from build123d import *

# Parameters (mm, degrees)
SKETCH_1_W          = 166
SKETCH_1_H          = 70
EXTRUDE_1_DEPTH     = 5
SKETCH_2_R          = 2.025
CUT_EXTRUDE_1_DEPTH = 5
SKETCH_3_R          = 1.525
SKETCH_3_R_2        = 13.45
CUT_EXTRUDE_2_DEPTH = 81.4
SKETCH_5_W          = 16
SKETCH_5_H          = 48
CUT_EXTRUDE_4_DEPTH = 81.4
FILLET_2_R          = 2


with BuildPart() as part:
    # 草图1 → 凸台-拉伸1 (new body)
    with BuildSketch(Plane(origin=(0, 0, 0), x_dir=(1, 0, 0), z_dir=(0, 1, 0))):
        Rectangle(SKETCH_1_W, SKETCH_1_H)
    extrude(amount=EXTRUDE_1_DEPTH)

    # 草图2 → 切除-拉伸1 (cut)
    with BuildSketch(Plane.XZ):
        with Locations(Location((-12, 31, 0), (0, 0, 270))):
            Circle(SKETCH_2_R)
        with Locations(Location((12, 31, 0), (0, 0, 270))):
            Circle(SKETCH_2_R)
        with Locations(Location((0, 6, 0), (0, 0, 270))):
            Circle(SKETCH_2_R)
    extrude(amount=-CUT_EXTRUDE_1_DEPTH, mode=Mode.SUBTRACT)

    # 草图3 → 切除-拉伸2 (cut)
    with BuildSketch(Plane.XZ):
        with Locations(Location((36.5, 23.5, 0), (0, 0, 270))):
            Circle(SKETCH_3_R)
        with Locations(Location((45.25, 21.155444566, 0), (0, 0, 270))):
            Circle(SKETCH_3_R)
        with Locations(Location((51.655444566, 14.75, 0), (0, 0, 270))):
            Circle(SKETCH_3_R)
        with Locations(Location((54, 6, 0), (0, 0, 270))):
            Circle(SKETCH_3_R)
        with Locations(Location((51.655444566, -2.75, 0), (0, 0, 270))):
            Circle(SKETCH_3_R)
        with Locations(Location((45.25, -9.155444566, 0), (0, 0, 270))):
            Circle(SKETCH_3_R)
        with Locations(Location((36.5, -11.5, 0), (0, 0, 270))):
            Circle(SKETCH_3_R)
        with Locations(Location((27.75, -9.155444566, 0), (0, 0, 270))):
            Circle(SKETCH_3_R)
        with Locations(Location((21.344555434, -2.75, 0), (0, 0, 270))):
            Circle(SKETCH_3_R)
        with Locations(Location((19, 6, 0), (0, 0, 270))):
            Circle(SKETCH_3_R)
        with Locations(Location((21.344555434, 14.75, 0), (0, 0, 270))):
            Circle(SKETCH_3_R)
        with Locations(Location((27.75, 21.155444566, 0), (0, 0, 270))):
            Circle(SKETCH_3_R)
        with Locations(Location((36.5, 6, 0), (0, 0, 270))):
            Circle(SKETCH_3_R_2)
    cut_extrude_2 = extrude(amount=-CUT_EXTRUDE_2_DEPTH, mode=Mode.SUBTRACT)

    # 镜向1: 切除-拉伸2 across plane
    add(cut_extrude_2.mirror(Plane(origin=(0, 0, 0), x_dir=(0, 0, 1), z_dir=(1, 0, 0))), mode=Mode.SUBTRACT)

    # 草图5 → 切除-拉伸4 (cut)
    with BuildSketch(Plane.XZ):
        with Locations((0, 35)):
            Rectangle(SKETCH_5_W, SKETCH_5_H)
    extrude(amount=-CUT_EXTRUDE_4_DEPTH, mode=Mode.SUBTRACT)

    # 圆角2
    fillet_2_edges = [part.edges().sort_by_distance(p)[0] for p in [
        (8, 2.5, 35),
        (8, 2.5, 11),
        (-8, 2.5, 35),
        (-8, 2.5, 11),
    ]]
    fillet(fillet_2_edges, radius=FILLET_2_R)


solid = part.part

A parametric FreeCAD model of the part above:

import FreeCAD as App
import Part
import Sketcher
Q = App.Units.Quantity


def edges_at(feature, points):
    """Names of the edges that pass closest to the given points."""
    edges = feature.Shape.Edges
    near = lambda p: min(range(len(edges)), key=lambda i: edges[i].distToShape(Part.Vertex(*p))[0])
    return sorted({f"Edge{near(p) + 1}" for p in points})

doc = App.newDocument("Part")
body = doc.addObject("PartDesign::Body", "Body")

sketch1 = body.newObject("Sketcher::SketchObject", "Sketch")
sketch1.AttachmentSupport = (doc.getObject("XZ_Plane"), [""])
sketch1.MapMode = "FlatFace"
sketch1.addGeometry(Part.LineSegment(App.Vector(-83, -35, 0), App.Vector(-83, 35, 0)), False)
sketch1.addGeometry(Part.LineSegment(App.Vector(-83, 35, 0), App.Vector(83, 35, 0)), False)
sketch1.addGeometry(Part.LineSegment(App.Vector(83, 35, 0), App.Vector(83, -35, 0)), False)
sketch1.addGeometry(Part.LineSegment(App.Vector(83, -35, 0), App.Vector(-83, -35, 0)), False)
sketch1.addConstraint(Sketcher.Constraint("Coincident", 0, 2, 1, 1))
sketch1.addConstraint(Sketcher.Constraint("Coincident", 1, 2, 2, 1))
sketch1.addConstraint(Sketcher.Constraint("Coincident", 2, 2, 3, 1))
sketch1.addConstraint(Sketcher.Constraint("Coincident", 3, 2, 0, 1))
sketch1.addConstraint(Sketcher.Constraint("Vertical", 0))
sketch1.addConstraint(Sketcher.Constraint("Horizontal", 1))
sketch1.addConstraint(Sketcher.Constraint("Vertical", 2))
sketch1.addConstraint(Sketcher.Constraint("Horizontal", 3))
sketch1.addConstraint(Sketcher.Constraint("Symmetric", 0, 2, 2, 2, -1, 1))
sketch1.addConstraint(Sketcher.Constraint("DistanceX", 1, 1, 1, 2, Q("166 mm")))
sketch1.addConstraint(Sketcher.Constraint("DistanceY", 0, 1, 0, 2, Q("70 mm")))
pad1 = body.newObject("PartDesign::Pad", "Pad")
pad1.Profile = sketch1
pad1.Length = 5
pad1.Reversed = True

sketch2 = body.newObject("Sketcher::SketchObject", "Sketch001")
sketch2.AttachmentSupport = (doc.getObject("XZ_Plane"), [""])
sketch2.MapMode = "FlatFace"
sketch2.addGeometry(Part.Circle(App.Vector(-12, 31, 0), App.Vector(0, 0, 1), 2.025), False)
sketch2.addGeometry(Part.Circle(App.Vector(12, 31, 0), App.Vector(0, 0, 1), 2.025), False)
sketch2.addGeometry(Part.Circle(App.Vector(0, 6, 0), App.Vector(0, 0, 1), 2.025), False)
sketch2.addConstraint(Sketcher.Constraint("Equal", 0, 1))
sketch2.addConstraint(Sketcher.Constraint("Equal", 1, 2))
sketch2.addConstraint(Sketcher.Constraint("Symmetric", 0, 3, 1, 3, -2))
sketch2.addConstraint(Sketcher.Constraint("PointOnObject", 2, 3, -2))
sketch2.addConstraint(Sketcher.Constraint("Diameter", 0, Q("4.05 mm")))
sketch2.addConstraint(Sketcher.Constraint("DistanceX", 0, 3, -1, 1, Q("12 mm")))
sketch2.addConstraint(Sketcher.Constraint("DistanceY", -1, 1, 0, 3, Q("31 mm")))
sketch2.addConstraint(Sketcher.Constraint("DistanceY", -1, 1, 2, 3, Q("6 mm")))
pocket1 = body.newObject("PartDesign::Pocket", "Pocket")
pocket1.Profile = sketch2
pocket1.Length = 5

sketch3 = body.newObject("Sketcher::SketchObject", "Sketch002")
sketch3.AttachmentSupport = (doc.getObject("XZ_Plane"), [""])
sketch3.MapMode = "FlatFace"
sketch3.addGeometry(Part.Circle(App.Vector(36.5, 23.5, 0), App.Vector(0, 0, 1), 1.525), False)
sketch3.addGeometry(Part.Circle(App.Vector(45.25, 21.155445, 0), App.Vector(0, 0, 1), 1.525), False)
sketch3.addGeometry(Part.Circle(App.Vector(51.655445, 14.75, 0), App.Vector(0, 0, 1), 1.525), False)
sketch3.addGeometry(Part.Circle(App.Vector(54, 6, 0), App.Vector(0, 0, 1), 1.525), False)
sketch3.addGeometry(Part.Circle(App.Vector(51.655445, -2.75, 0), App.Vector(0, 0, 1), 1.525), False)
sketch3.addGeometry(Part.Circle(App.Vector(45.25, -9.155445, 0), App.Vector(0, 0, 1), 1.525), False)
sketch3.addGeometry(Part.Circle(App.Vector(36.5, -11.5, 0), App.Vector(0, 0, 1), 1.525), False)
sketch3.addGeometry(Part.Circle(App.Vector(27.75, -9.155445, 0), App.Vector(0, 0, 1), 1.525), False)
sketch3.addGeometry(Part.Circle(App.Vector(21.344555, -2.75, 0), App.Vector(0, 0, 1), 1.525), False)
sketch3.addGeometry(Part.Circle(App.Vector(19, 6, 0), App.Vector(0, 0, 1), 1.525), False)
sketch3.addGeometry(Part.Circle(App.Vector(21.344555, 14.75, 0), App.Vector(0, 0, 1), 1.525), False)
sketch3.addGeometry(Part.Circle(App.Vector(27.75, 21.155445, 0), App.Vector(0, 0, 1), 1.525), False)
sketch3.addGeometry(Part.Circle(App.Vector(36.5, 6, 0), App.Vector(0, 0, 1), 13.45), False)
sketch3.addConstraint(Sketcher.Constraint("Equal", 0, 1))
sketch3.addConstraint(Sketcher.Constraint("Equal", 1, 2))
sketch3.addConstraint(Sketcher.Constraint("Equal", 2, 3))
sketch3.addConstraint(Sketcher.Constraint("Equal", 3, 4))
sketch3.addConstraint(Sketcher.Constraint("Equal", 4, 5))
sketch3.addConstraint(Sketcher.Constraint("Equal", 5, 6))
sketch3.addConstraint(Sketcher.Constraint("Equal", 6, 7))
sketch3.addConstraint(Sketcher.Constraint("Equal", 7, 8))
sketch3.addConstraint(Sketcher.Constraint("Equal", 8, 9))
sketch3.addConstraint(Sketcher.Constraint("Equal", 9, 10))
sketch3.addConstraint(Sketcher.Constraint("Equal", 10, 11))
sketch3.addConstraint(Sketcher.Constraint("Horizontal", 5, 3, 7, 3))
sketch3.addConstraint(Sketcher.Constraint("Horizontal", 4, 3, 8, 3))
sketch3.addConstraint(Sketcher.Constraint("Horizontal", 3, 3, 9, 3))
sketch3.addConstraint(Sketcher.Constraint("Horizontal", 2, 3, 10, 3))
sketch3.addConstraint(Sketcher.Constraint("Horizontal", 1, 3, 11, 3))
sketch3.addConstraint(Sketcher.Constraint("Horizontal", 9, 3, 12, 3))
sketch3.addConstraint(Sketcher.Constraint("Vertical", 2, 3, 4, 3))
sketch3.addConstraint(Sketcher.Constraint("Vertical", 1, 3, 5, 3))
sketch3.addConstraint(Sketcher.Constraint("Vertical", 0, 3, 6, 3))
sketch3.addConstraint(Sketcher.Constraint("Vertical", 8, 3, 10, 3))
sketch3.addConstraint(Sketcher.Constraint("Vertical", 7, 3, 11, 3))
sketch3.addConstraint(Sketcher.Constraint("Vertical", 6, 3, 12, 3))
sketch3.addConstraint(Sketcher.Constraint("Diameter", 12, Q("26.9 mm")))
sketch3.addConstraint(Sketcher.Constraint("Diameter", 0, Q("3.05 mm")))
sketch3.addConstraint(Sketcher.Constraint("DistanceX", -1, 1, 3, 3, Q("54 mm")))
sketch3.addConstraint(Sketcher.Constraint("DistanceY", -1, 1, 3, 3, Q("6 mm")))
sketch3.addConstraint(Sketcher.Constraint("DistanceX", -1, 1, 9, 3, Q("19 mm")))
sketch3.addConstraint(Sketcher.Constraint("DistanceX", -1, 1, 0, 3, Q("36.5 mm")))
sketch3.addConstraint(Sketcher.Constraint("DistanceY", -1, 1, 0, 3, Q("23.5 mm")))
sketch3.addConstraint(Sketcher.Constraint("DistanceY", 6, 3, -1, 1, Q("11.5 mm")))
sketch3.addConstraint(Sketcher.Constraint("DistanceY", 4, 3, 2, 3, Q("17.5 mm")))
sketch3.addConstraint(Sketcher.Constraint("DistanceX", 7, 3, 5, 3, Q("17.5 mm")))
sketch3.addConstraint(Sketcher.Constraint("DistanceX", -1, 1, 1, 3, Q("45.25 mm")))
sketch3.addConstraint(Sketcher.Constraint("DistanceY", -1, 1, 2, 3, Q("14.75 mm")))
sketch3.addConstraint(Sketcher.Constraint("DistanceY", 5, 3, 1, 3, Q("30.310889 mm")))
sketch3.addConstraint(Sketcher.Constraint("DistanceX", 8, 3, 4, 3, Q("30.310889 mm")))
sketch3.addConstraint(Sketcher.Constraint("DistanceY", -1, 1, 1, 3, Q("21.155445 mm")))
sketch3.addConstraint(Sketcher.Constraint("DistanceX", -1, 1, 2, 3, Q("51.655445 mm")))
pocket2 = body.newObject("PartDesign::Pocket", "Pocket001")
pocket2.Profile = sketch3
pocket2.Length = 81.4
doc.recompute()

mirrored = body.newObject("PartDesign::Mirrored", "Mirrored")
mirrored.Originals = [pocket2]
mirrored.MirrorPlane = (doc.getObject("YZ_Plane"), [""])
body.Tip = mirrored

sketch4 = body.newObject("Sketcher::SketchObject", "Sketch003")
sketch4.AttachmentSupport = (doc.getObject("XZ_Plane"), [""])
sketch4.MapMode = "FlatFace"
sketch4.addGeometry(Part.LineSegment(App.Vector(-8, 59, 0), App.Vector(-8, 11, 0)), False)
sketch4.addGeometry(Part.LineSegment(App.Vector(-8, 11, 0), App.Vector(8, 11, 0)), False)
sketch4.addGeometry(Part.LineSegment(App.Vector(8, 11, 0), App.Vector(8, 59, 0)), False)
sketch4.addGeometry(Part.LineSegment(App.Vector(8, 59, 0), App.Vector(-8, 59, 0)), False)
sketch4.addConstraint(Sketcher.Constraint("Coincident", 0, 2, 1, 1))
sketch4.addConstraint(Sketcher.Constraint("Coincident", 1, 2, 2, 1))
sketch4.addConstraint(Sketcher.Constraint("Coincident", 2, 2, 3, 1))
sketch4.addConstraint(Sketcher.Constraint("Coincident", 3, 2, 0, 1))
sketch4.addConstraint(Sketcher.Constraint("Vertical", 0))
sketch4.addConstraint(Sketcher.Constraint("Horizontal", 1))
sketch4.addConstraint(Sketcher.Constraint("Vertical", 2))
sketch4.addConstraint(Sketcher.Constraint("Horizontal", 3))
sketch4.addConstraint(Sketcher.Constraint("DistanceX", 1, 1, 1, 2, Q("16 mm")))
sketch4.addConstraint(Sketcher.Constraint("DistanceY", 0, 2, 0, 1, Q("48 mm")))
sketch4.addConstraint(Sketcher.Constraint("DistanceX", 0, 2, -1, 1, Q("8 mm")))
sketch4.addConstraint(Sketcher.Constraint("DistanceY", -1, 1, 0, 2, Q("11 mm")))
pocket3 = body.newObject("PartDesign::Pocket", "Pocket002")
pocket3.Profile = sketch4
pocket3.Length = 81.4
doc.recompute()

fillet = body.newObject("PartDesign::Fillet", "Fillet")
fillet.Base = (pocket3, edges_at(pocket3, [
    (8, 2.5, 35),
    (8, 2.5, 11),
    (-8, 2.5, 35),
    (-8, 2.5, 11),
]))
fillet.Radius = 2

doc.recompute()
